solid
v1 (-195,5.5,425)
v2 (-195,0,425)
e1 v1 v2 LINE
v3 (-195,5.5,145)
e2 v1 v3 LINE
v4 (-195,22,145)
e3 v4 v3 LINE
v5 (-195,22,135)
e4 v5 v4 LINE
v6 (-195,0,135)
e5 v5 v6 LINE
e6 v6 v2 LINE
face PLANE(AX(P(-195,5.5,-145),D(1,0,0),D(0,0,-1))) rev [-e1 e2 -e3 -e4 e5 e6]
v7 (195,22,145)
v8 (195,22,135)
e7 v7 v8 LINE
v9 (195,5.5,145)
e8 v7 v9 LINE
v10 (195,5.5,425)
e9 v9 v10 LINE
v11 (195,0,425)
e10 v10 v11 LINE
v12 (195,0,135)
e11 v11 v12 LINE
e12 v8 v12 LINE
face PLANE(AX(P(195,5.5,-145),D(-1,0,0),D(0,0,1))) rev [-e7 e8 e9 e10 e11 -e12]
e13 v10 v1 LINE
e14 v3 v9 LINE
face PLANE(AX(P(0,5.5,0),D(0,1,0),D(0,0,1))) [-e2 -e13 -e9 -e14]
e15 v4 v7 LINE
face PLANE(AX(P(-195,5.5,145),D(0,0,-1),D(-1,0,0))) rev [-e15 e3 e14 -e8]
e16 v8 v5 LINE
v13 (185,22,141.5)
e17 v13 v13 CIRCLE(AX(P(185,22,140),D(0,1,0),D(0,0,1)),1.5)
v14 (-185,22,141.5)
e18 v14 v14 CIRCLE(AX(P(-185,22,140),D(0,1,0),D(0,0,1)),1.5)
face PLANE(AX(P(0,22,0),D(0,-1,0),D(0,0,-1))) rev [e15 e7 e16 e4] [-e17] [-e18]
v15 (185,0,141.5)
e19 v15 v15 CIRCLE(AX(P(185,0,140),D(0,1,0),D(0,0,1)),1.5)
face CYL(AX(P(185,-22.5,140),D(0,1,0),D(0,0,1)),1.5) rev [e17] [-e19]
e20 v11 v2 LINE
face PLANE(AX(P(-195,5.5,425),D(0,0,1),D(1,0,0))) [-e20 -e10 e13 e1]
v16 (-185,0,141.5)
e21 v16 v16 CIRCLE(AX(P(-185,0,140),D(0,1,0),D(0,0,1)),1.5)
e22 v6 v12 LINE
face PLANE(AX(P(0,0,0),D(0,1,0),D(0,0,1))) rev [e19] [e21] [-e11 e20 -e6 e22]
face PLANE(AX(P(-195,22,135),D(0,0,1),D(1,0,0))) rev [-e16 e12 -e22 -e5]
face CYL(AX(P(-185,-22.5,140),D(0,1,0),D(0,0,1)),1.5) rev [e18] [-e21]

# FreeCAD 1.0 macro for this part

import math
import FreeCAD as App
import Part
import Sketcher
from FreeCAD import Vector
Q = App.Units.Quantity

doc = App.newDocument("Part")
body = doc.addObject("PartDesign::Body", "Body")

# Sketch on XZ plane
sketch1 = body.newObject("Sketcher::SketchObject", "Sketch")
sketch1.AttachmentSupport = (doc.getObject("XZ_Plane"), [""])
sketch1.MapMode = "FlatFace"
sketch1.addGeometry([
    Part.LineSegment(Vector(-195, -145, 0), Vector(-195, 145, 0)),
    Part.LineSegment(Vector(-195, 145, 0), Vector(195, 145, 0)),
    Part.LineSegment(Vector(195, 145, 0), Vector(195, -145, 0)),
    Part.LineSegment(Vector(195, -145, 0), Vector(-195, -145, 0)),
], False)
sketch1.addConstraint([
    Sketcher.Constraint("Coincident", 0, 2, 1, 1),
    Sketcher.Constraint("Coincident", 1, 2, 2, 1),
    Sketcher.Constraint("Coincident", 2, 2, 3, 1),
    Sketcher.Constraint("Coincident", 3, 2, 0, 1),
    Sketcher.Constraint("Vertical", 0),
    Sketcher.Constraint("Horizontal", 1),
    Sketcher.Constraint("Vertical", 2),
    Sketcher.Constraint("Horizontal", 3),
    Sketcher.Constraint("Symmetric", 0, 2, 2, 2, -1, 1),
    Sketcher.Constraint("DistanceX", 1, 1, 1, 2, Q("390 mm")),
    Sketcher.Constraint("DistanceY", 0, 1, 0, 2, Q("290 mm")),
])
pad1 = body.newObject("PartDesign::Pad", "Pad")
pad1.Profile = sketch1
pad1.Length = 10
pad1.Reversed = True

# Sketch on XZ plane
sketch2 = body.newObject("Sketcher::SketchObject", "Sketch001")
sketch2.AttachmentSupport = (doc.getObject("XZ_Plane"), [""])
sketch2.MapMode = "FlatFace"
sketch2.AttachmentOffset = App.Placement(Vector(0, 0, -10), App.Rotation())
sketch2.addGeometry([
    Part.LineSegment(Vector(-195, 138, 0), Vector(-195, 145, 0)),
    Part.LineSegment(Vector(-195, 145, 0), Vector(195, 145, 0)),
    Part.LineSegment(Vector(195, 145, 0), Vector(195, 138, 0)),
    Part.LineSegment(Vector(195, 138, 0), Vector(-195, 138, 0)),
], False)
sketch2.addConstraint([
    Sketcher.Constraint("Coincident", 0, 2, 1, 1),
    Sketcher.Constraint("Coincident", 1, 2, 2, 1),
    Sketcher.Constraint("Coincident", 2, 2, 3, 1),
    Sketcher.Constraint("Coincident", 3, 2, 0, 1),
    Sketcher.Constraint("Vertical", 0),
    Sketcher.Constraint("Horizontal", 1),
    Sketcher.Constraint("Vertical", 2),
    Sketcher.Constraint("Horizontal", 3),
    Sketcher.Constraint("DistanceX", 1, 1, 1, 2, Q("390 mm")),
    Sketcher.Constraint("DistanceY", 0, 1, 0, 2, Q("7 mm")),
    Sketcher.Constraint("DistanceX", 0, 2, -1, 1, Q("195 mm")),
    Sketcher.Constraint("DistanceY", -1, 1, 0, 2, Q("145 mm")),
])
pad2 = body.newObject("PartDesign::Pad", "Pad001")
pad2.Profile = sketch2
pad2.Length = 25
pad2.Reversed = True

# Sketch on YZ plane
sketch3 = body.newObject("Sketcher::SketchObject", "Sketch002")
sketch3.AttachmentSupport = (doc.getObject("YZ_Plane"), [""])
sketch3.MapMode = "FlatFace"
sketch3.AttachmentOffset = App.Placement(Vector(0, 0, -195), App.Rotation())
sketch3.addGeometry([
    Part.LineSegment(Vector(-136, 51, 0), Vector(0, 145, 0)),
    Part.LineSegment(Vector(0, 145, 0), Vector(0, -145, 0)),
    Part.LineSegment(Vector(0, -145, 0), Vector(-136, 51, 0)),
], False)
sketch3.addConstraint([
    Sketcher.Constraint("Coincident", 0, 2, 1, 1),
    Sketcher.Constraint("Coincident", 1, 2, 2, 1),
    Sketcher.Constraint("Coincident", 2, 2, 0, 1),
    Sketcher.Constraint("Vertical", 1),
    Sketcher.Constraint("Symmetric", 0, 2, 1, 2, -1, 1),
    Sketcher.Constraint("Perpendicular", 0, 2),
    Sketcher.Constraint("DistanceY", 1, 2, 1, 1, Q("290 mm")),
    Sketcher.Constraint("Distance", 0, Q("165 mm")),
])
pad3 = body.newObject("PartDesign::Pad", "Pad002")
pad3.Profile = sketch3
pad3.Length = 390

# Sketch on YZ plane
sketch4 = body.newObject("Sketcher::SketchObject", "Sketch003")
sketch4.AttachmentSupport = (doc.getObject("YZ_Plane"), [""])
sketch4.MapMode = "FlatFace"
sketch4.AttachmentOffset = App.Placement(Vector(0, 0, -195), App.Rotation())
sketch4.addGeometry([
    Part.LineSegment(Vector(0, 145, 0), Vector(0, -145, 0)),
    Part.LineSegment(Vector(0, -145, 0), Vector(-136, 51, 0)),
    Part.LineSegment(Vector(-136, 51, 0), Vector(0, 145, 0)),
], False)
sketch4.addConstraint([
    Sketcher.Constraint("Coincident", 0, 2, 1, 1),
    Sketcher.Constraint("Coincident", 1, 2, 2, 1),
    Sketcher.Constraint("Coincident", 2, 2, 0, 1),
    Sketcher.Constraint("Vertical", 0),
    Sketcher.Constraint("Symmetric", 0, 2, 2, 2, -1, 1),
    Sketcher.Constraint("Perpendicular", 1, 2),
    Sketcher.Constraint("DistanceY", 0, 2, 0, 1, Q("290 mm")),
    Sketcher.Constraint("Distance", 2, Q("165 mm")),
])
pocket1 = body.newObject("PartDesign::Pocket", "Pocket")
pocket1.Profile = sketch4
pocket1.Length = 180
pocket1.Reversed = True

# Sketch on YZ plane
sketch5 = body.newObject("Sketcher::SketchObject", "Sketch004")
sketch5.AttachmentSupport = (doc.getObject("YZ_Plane"), [""])
sketch5.MapMode = "FlatFace"
sketch5.AttachmentOffset = App.Placement(Vector(0, 0, 195), App.Rotation())
sketch5.addGeometry([
    Part.LineSegment(Vector(0, -145, 0), Vector(0, 145, 0)),
    Part.LineSegment(Vector(0, 145, 0), Vector(-136, 51, 0)),
    Part.LineSegment(Vector(-136, 51, 0), Vector(0, -145, 0)),
], False)
sketch5.addConstraint([
    Sketcher.Constraint("Coincident", 0, 2, 1, 1),
    Sketcher.Constraint("Coincident", 1, 2, 2, 1),
    Sketcher.Constraint("Coincident", 2, 2, 0, 1),
    Sketcher.Constraint("Vertical", 0),
    Sketcher.Constraint("Symmetric", 0, 2, 2, 2, -1, 1),
    Sketcher.Constraint("Perpendicular", 1, 2),
    Sketcher.Constraint("DistanceY", 0, 1, 0, 2, Q("290 mm")),
    Sketcher.Constraint("Distance", 1, Q("165 mm")),
])
pocket2 = body.newObject("PartDesign::Pocket", "Pocket001")
pocket2.Profile = sketch5
pocket2.Length = 180

# Sketch on an angled plane
sketch6 = body.newObject("Sketcher::SketchObject", "Sketch005")
sketch6.Placement = App.Placement(Vector(0, -67.844814, -46.939655), App.Rotation(Vector(-1, 0, 0), Vector(0, 0.568965517, -0.822361381), Vector(0, -0.822361381, -0.568965517), "ZXY"))
sketch6.addGeometry([
    Part.LineSegment(Vector(15, -119, 0), Vector(105, 119, 0)),
    Part.LineSegment(Vector(105, 119, 0), Vector(75, 119, 0)),
    Part.LineSegment(Vector(75, 119, 0), Vector(15, -40, 0)),
    Part.LineSegment(Vector(15, -40, 0), Vector(15, -119, 0)),
], False)
sketch6.addConstraint([
    Sketcher.Constraint("Coincident", 0, 2, 1, 1),
    Sketcher.Constraint("Coincident", 1, 2, 2, 1),
    Sketcher.Constraint("Coincident", 2, 2, 3, 1),
    Sketcher.Constraint("Coincident", 3, 2, 0, 1),
    Sketcher.Constraint("Horizontal", 1),
    Sketcher.Constraint("Vertical", 3),
    Sketcher.Constraint("Parallel", 0, 2),
    Sketcher.Constraint("DistanceX", 1, 2, 1, 1, Q("30 mm")),
    Sketcher.Constraint("DistanceX", -1, 1, 0, 2, Q("105 mm")),
    Sketcher.Constraint("DistanceX", -1, 1, 2, 2, Q("15 mm")),
    Sketcher.Constraint("DistanceY", -1, 1, 0, 2, Q("119.2424 mm")),
    Sketcher.Constraint("DistanceY", 3, 2, -1, 1, Q("119.2424 mm")),
])
pad4 = body.newObject("PartDesign::Pad", "Pad003")
pad4.Profile = sketch6
pad4.Length = 179
pad4.Reversed = True

# Sketch on YZ plane
sketch7 = body.newObject("Sketcher::SketchObject", "Sketch006")
sketch7.AttachmentSupport = (doc.getObject("YZ_Plane"), [""])
sketch7.MapMode = "FlatFace"
sketch7.AttachmentOffset = App.Placement(Vector(0, 0, -195), App.Rotation())
sketch7.addGeometry([
    Part.LineSegment(Vector(204, -145, 0), Vector(10, -145, 0)),
    Part.LineSegment(Vector(10, -145, 0), Vector(10, 138, 0)),
    Part.LineSegment(Vector(10, 138, 0), Vector(204, 138, 0)),
    Part.LineSegment(Vector(204, 138, 0), Vector(204, -145, 0)),
], False)
sketch7.addConstraint([
    Sketcher.Constraint("Coincident", 0, 2, 1, 1),
    Sketcher.Constraint("Coincident", 1, 2, 2, 1),
    Sketcher.Constraint("Coincident", 2, 2, 3, 1),
    Sketcher.Constraint("Coincident", 3, 2, 0, 1),
    Sketcher.Constraint("Horizontal", 0),
    Sketcher.Constraint("Vertical", 1),
    Sketcher.Constraint("Horizontal", 2),
    Sketcher.Constraint("Vertical", 3),
    Sketcher.Constraint("DistanceY", 1, 1, 1, 2, Q("283 mm")),
    Sketcher.Constraint("DistanceX", -1, 1, 0, 2, Q("10 mm")),
    Sketcher.Constraint("DistanceY", 0, 2, -1, 1, Q("145 mm")),
    Sketcher.Constraint("DistanceX", 0, 2, 0, 1, Q("194.109963 mm")),
])
pocket3 = body.newObject("PartDesign::Pocket", "Pocket002")
pocket3.Profile = sketch7
pocket3.Length = 236
pocket3.Reversed = True

# Sketch on YZ plane
sketch8 = body.newObject("Sketcher::SketchObject", "Sketch007")
sketch8.AttachmentSupport = (doc.getObject("YZ_Plane"), [""])
sketch8.MapMode = "FlatFace"
sketch8.AttachmentOffset = App.Placement(Vector(0, 0, -195), App.Rotation())
sketch8.addGeometry([
    Part.LineSegment(Vector(17, 145, 0), Vector(0, 145, 0)),
    Part.LineSegment(Vector(0, 145, 0), Vector(2, 166, 0)),
    Part.LineSegment(Vector(2, 166, 0), Vector(19, 161, 0)),
    Part.LineSegment(Vector(19, 161, 0), Vector(17, 145, 0)),
], False)
sketch8.addConstraint([
    Sketcher.Constraint("Coincident", 0, 2, 1, 1),
    Sketcher.Constraint("Coincident", 1, 2, 2, 1),
    Sketcher.Constraint("Coincident", 2, 2, 3, 1),
    Sketcher.Constraint("Coincident", 3, 2, 0, 1),
    Sketcher.Constraint("Horizontal", 0),
    Sketcher.Constraint("PointOnObject", 0, 2, -2),
    Sketcher.Constraint("DistanceY", -1, 1, 0, 2, Q("145 mm")),
    Sketcher.Constraint("Distance", 3, Q("16.516949 mm")),
    Sketcher.Constraint("DistanceX", 0, 2, 0, 1, Q("17.024146 mm")),
    Sketcher.Constraint("DistanceY", -1, 1, 1, 2, Q("165.78959 mm")),
    Sketcher.Constraint("DistanceX", 1, 2, 3, 2, Q("15.42095 mm")),
    Sketcher.Constraint("Distance", 2, Q("18.251814 mm")),
])
pocket4 = body.newObject("PartDesign::Pocket", "Pocket003")
pocket4.Profile = sketch8
pocket4.Length = 236
pocket4.Reversed = True

# Sketch on an angled plane
sketch9 = body.newObject("Sketcher::SketchObject", "Sketch008")
sketch9.Placement = App.Placement(Vector(0, -67.844814, -46.939655), App.Rotation(Vector(-1, 0, 0), Vector(0, 0.568965517, -0.822361381), Vector(0, -0.822361381, -0.568965517), "ZXY"))
sketch9.addGeometry([
    Part.LineSegment(Vector(-105, 119, 0), Vector(-15, -119, 0)),
    Part.LineSegment(Vector(-15, -119, 0), Vector(-15, -40, 0)),
    Part.LineSegment(Vector(-15, -40, 0), Vector(-75, 119, 0)),
    Part.LineSegment(Vector(-75, 119, 0), Vector(-105, 119, 0)),
], False)
sketch9.addConstraint([
    Sketcher.Constraint("Coincident", 0, 2, 1, 1),
    Sketcher.Constraint("Coincident", 1, 2, 2, 1),
    Sketcher.Constraint("Coincident", 2, 2, 3, 1),
    Sketcher.Constraint("Coincident", 3, 2, 0, 1),
    Sketcher.Constraint("Vertical", 1),
    Sketcher.Constraint("Horizontal", 3),
    Sketcher.Constraint("Parallel", 0, 2),
    Sketcher.Constraint("DistanceX", 3, 2, 3, 1, Q("30 mm")),
    Sketcher.Constraint("DistanceX", 0, 2, -1, 1, Q("15 mm")),
    Sketcher.Constraint("DistanceX", 2, 2, -1, 1, Q("75 mm")),
    Sketcher.Constraint("DistanceY", 0, 2, -1, 1, Q("119.2424 mm")),
    Sketcher.Constraint("DistanceY", -1, 1, 2, 2, Q("119.2424 mm")),
])
pad5 = body.newObject("PartDesign::Pad", "Pad004")
pad5.Profile = sketch9
pad5.Length = 236
pad5.Reversed = True

# Sketch on YZ plane
sketch10 = body.newObject("Sketcher::SketchObject", "Sketch009")
sketch10.AttachmentSupport = (doc.getObject("YZ_Plane"), [""])
sketch10.MapMode = "FlatFace"
sketch10.AttachmentOffset = App.Placement(Vector(0, 0, 195), App.Rotation())
sketch10.addGeometry([
    Part.LineSegment(Vector(247, 138, 0), Vector(10, 138, 0)),  # 0
    Part.LineSegment(Vector(10, 138, 0), Vector(10, -202, 0)),  # 1
    Part.LineSegment(Vector(10, -202, 0), Vector(247, -202, 0)),  # 2
    Part.LineSegment(Vector(247, -202, 0), Vector(247, 138, 0)),  # 3
    Part.LineSegment(Vector(75, 190, 0), Vector(0, 190, 0)),  # 4
    Part.LineSegment(Vector(0, 190, 0), Vector(0, 145, 0)),  # 5
    Part.LineSegment(Vector(0, 145, 0), Vector(75, 145, 0)),  # 6
    Part.LineSegment(Vector(75, 145, 0), Vector(75, 190, 0)),  # 7
], False)
sketch10.addConstraint([
    Sketcher.Constraint("Coincident", 0, 2, 1, 1),
    Sketcher.Constraint("Coincident", 1, 2, 2, 1),
    Sketcher.Constraint("Coincident", 2, 2, 3, 1),
    Sketcher.Constraint("Coincident", 3, 2, 0, 1),
    Sketcher.Constraint("Coincident", 4, 2, 5, 1),
    Sketcher.Constraint("Coincident", 5, 2, 6, 1),
    Sketcher.Constraint("Coincident", 6, 2, 7, 1),
    Sketcher.Constraint("Coincident", 7, 2, 4, 1),
    Sketcher.Constraint("Horizontal", 0),
    Sketcher.Constraint("Vertical", 1),
    Sketcher.Constraint("Horizontal", 2),
    Sketcher.Constraint("Vertical", 3),
    Sketcher.Constraint("Horizontal", 4),
    Sketcher.Constraint("Vertical", 5),
    Sketcher.Constraint("Horizontal", 6),
    Sketcher.Constraint("Vertical", 7),
    Sketcher.Constraint("PointOnObject", 4, 2, -2),
    Sketcher.Constraint("DistanceX", -1, 1, 0, 2, Q("10 mm")),
    Sketcher.Constraint("DistanceY", -1, 1, 0, 2, Q("138 mm")),
    Sketcher.Constraint("DistanceY", -1, 1, 5, 2, Q("145 mm")),
    Sketcher.Constraint("DistanceX", 0, 2, 0, 1, Q("236.819652 mm")),
    Sketcher.Constraint("DistanceX", 4, 2, 4, 1, Q("75.104658 mm")),
    Sketcher.Constraint("DistanceY", 1, 2, 1, 1, Q("339.798947 mm")),
    Sketcher.Constraint("DistanceY", 5, 2, 5, 1, Q("44.776465 mm")),
])
pocket5 = body.newObject("PartDesign::Pocket", "Pocket004")
pocket5.Profile = sketch10
pocket5.Length = 500

# Sketch on YZ plane
sketch11 = body.newObject("Sketcher::SketchObject", "Sketch010")
sketch11.AttachmentSupport = (doc.getObject("YZ_Plane"), [""])
sketch11.MapMode = "FlatFace"
sketch11.AttachmentOffset = App.Placement(Vector(0, 0, 195), App.Rotation())
sketch11.addGeometry([
    Part.LineSegment(Vector(116, 197, 0), Vector(35, 197, 0)),
    Part.LineSegment(Vector(35, 197, 0), Vector(35, 138, 0)),
    Part.LineSegment(Vector(35, 138, 0), Vector(116, 138, 0)),
    Part.LineSegment(Vector(116, 138, 0), Vector(116, 197, 0)),
], False)
sketch11.addConstraint([
    Sketcher.Constraint("Coincident", 0, 2, 1, 1),
    Sketcher.Constraint("Coincident", 1, 2, 2, 1),
    Sketcher.Constraint("Coincident", 2, 2, 3, 1),
    Sketcher.Constraint("Coincident", 3, 2, 0, 1),
    Sketcher.Constraint("Horizontal", 0),
    Sketcher.Constraint("Vertical", 1),
    Sketcher.Constraint("Horizontal", 2),
    Sketcher.Constraint("Vertical", 3),
    Sketcher.Constraint("DistanceX", -1, 1, 0, 2, Q("35 mm")),
    Sketcher.Constraint("DistanceY", -1, 1, 1, 2, Q("138 mm")),
    Sketcher.Constraint("DistanceY", 1, 2, 1, 1, Q("59.446001 mm")),
    Sketcher.Constraint("DistanceX", 0, 2, 0, 1, Q("81.43589 mm")),
])
pocket6 = body.newObject("PartDesign::Pocket", "Pocket005")
pocket6.Profile = sketch11
pocket6.Length = 500

# Sketch on YZ plane
sketch12 = body.newObject("Sketcher::SketchObject", "Sketch011")
sketch12.AttachmentSupport = (doc.getObject("YZ_Plane"), [""])
sketch12.MapMode = "FlatFace"
sketch12.AttachmentOffset = App.Placement(Vector(0, 0, -195), App.Rotation())
sketch12.addGeometry([
    Part.LineSegment(Vector(0, -127, 0), Vector(-5, -127, 0)),
    Part.LineSegment(Vector(-5, -127, 0), Vector(-5, -77, 0)),
    Part.LineSegment(Vector(-5, -77, 0), Vector(0, -77, 0)),
    Part.LineSegment(Vector(0, -77, 0), Vector(0, -127, 0)),
], False)
sketch12.addConstraint([
    Sketcher.Constraint("Coincident", 0, 2, 1, 1),
    Sketcher.Constraint("Coincident", 1, 2, 2, 1),
    Sketcher.Constraint("Coincident", 2, 2, 3, 1),
    Sketcher.Constraint("Coincident", 3, 2, 0, 1),
    Sketcher.Constraint("Horizontal", 0),
    Sketcher.Constraint("Vertical", 1),
    Sketcher.Constraint("Horizontal", 2),
    Sketcher.Constraint("Vertical", 3),
    Sketcher.Constraint("PointOnObject", 2, 2, -2),
    Sketcher.Constraint("DistanceX", 0, 2, 0, 1, Q("5 mm")),
    Sketcher.Constraint("DistanceY", 1, 1, 1, 2, Q("50 mm")),
    Sketcher.Constraint("DistanceY", 0, 2, -1, 1, Q("127 mm")),
])
pocket7 = body.newObject("PartDesign::Pocket", "Pocket006")
pocket7.Profile = sketch12
pocket7.Length = 500
pocket7.Reversed = True

# Sketch on XZ plane
sketch13 = body.newObject("Sketcher::SketchObject", "Sketch012")
sketch13.AttachmentSupport = (doc.getObject("XZ_Plane"), [""])
sketch13.MapMode = "FlatFace"
sketch13.AttachmentOffset = App.Placement(Vector(0, 0, -10), App.Rotation())
sketch13.addGeometry([
    Part.LineSegment(Vector(-195, -145, 0), Vector(-195, 138, 0)),
    Part.LineSegment(Vector(-195, 138, 0), Vector(195, 138, 0)),
    Part.LineSegment(Vector(195, 138, 0), Vector(195, -145, 0)),
    Part.LineSegment(Vector(195, -145, 0), Vector(-195, -145, 0)),
], False)
sketch13.addConstraint([
    Sketcher.Constraint("Coincident", 0, 2, 1, 1),
    Sketcher.Constraint("Coincident", 1, 2, 2, 1),
    Sketcher.Constraint("Coincident", 2, 2, 3, 1),
    Sketcher.Constraint("Coincident", 3, 2, 0, 1),
    Sketcher.Constraint("Vertical", 0),
    Sketcher.Constraint("Horizontal", 1),
    Sketcher.Constraint("Vertical", 2),
    Sketcher.Constraint("Horizontal", 3),
    Sketcher.Constraint("DistanceX", 1, 1, 1, 2, Q("390 mm")),
    Sketcher.Constraint("DistanceY", 0, 1, 0, 2, Q("283 mm")),
    Sketcher.Constraint("DistanceX", 0, 2, -1, 1, Q("195 mm")),
    Sketcher.Constraint("DistanceY", -1, 1, 0, 2, Q("138 mm")),
])
pocket8 = body.newObject("PartDesign::Pocket", "Pocket007")
pocket8.Profile = sketch13
pocket8.Length = 10
pocket8.Reversed = True

# Sketch on XZ plane
sketch14 = body.newObject("Sketcher::SketchObject", "Sketch013")
sketch14.AttachmentSupport = (doc.getObject("XZ_Plane"), [""])
sketch14.MapMode = "FlatFace"
sketch14.addGeometry([
    Part.Circle(Vector(-87.2, -136, 0), Vector(0, 0, 1), 3.8),
    Part.Circle(Vector(0, -136, 0), Vector(0, 0, 1), 3.8),
    Part.Circle(Vector(87.2, -136, 0), Vector(0, 0, 1), 3.8),
], False)
sketch14.addConstraint([
    Sketcher.Constraint("Equal", 0, 1),
    Sketcher.Constraint("Equal", 1, 2),
    Sketcher.Constraint("Symmetric", 0, 3, 2, 3, -2),
    Sketcher.Constraint("PointOnObject", 1, 3, -2),
    Sketcher.Constraint("Horizontal", 0, 3, 1, 3),
    Sketcher.Constraint("Diameter", 0, Q("7.5 mm")),
    Sketcher.Constraint("DistanceY", 0, 3, -1, 1, Q("136 mm")),
    Sketcher.Constraint("DistanceX", 0, 3, 2, 3, Q("174.41 mm")),
])
pocket9 = body.newObject("PartDesign::Pocket", "Pocket008")
pocket9.Profile = sketch14
pocket9.Length = 10
pocket9.Reversed = True

# Sketch on XZ plane
sketch15 = body.newObject("Sketcher::SketchObject", "Sketch014")
sketch15.AttachmentSupport = (doc.getObject("XZ_Plane"), [""])
sketch15.MapMode = "FlatFace"
sketch15.addGeometry([
    Part.Circle(Vector(-87.2, -136, 0), Vector(0, 0, 1), 3.8),  # 0
    Part.Circle(Vector(-87.2, -136, 0), Vector(0, 0, 1), 1.5),  # 1
    Part.Circle(Vector(0, -136, 0), Vector(0, 0, 1), 3.8),  # 2
    Part.Circle(Vector(0, -136, 0), Vector(0, 0, 1), 1.5),  # 3
    Part.Circle(Vector(87.2, -136, 0), Vector(0, 0, 1), 3.8),  # 4
    Part.Circle(Vector(87.2, -136, 0), Vector(0, 0, 1), 1.5),  # 5
], False)
sketch15.addConstraint([
    Sketcher.Constraint("Coincident", 1, 3, 0, 3),
    Sketcher.Constraint("Coincident", 3, 3, 2, 3),
    Sketcher.Constraint("Coincident", 5, 3, 4, 3),
    Sketcher.Constraint("Equal", 0, 2),
    Sketcher.Constraint("Equal", 1, 3),
    Sketcher.Constraint("Equal", 2, 4),
    Sketcher.Constraint("Equal", 3, 5),
    Sketcher.Constraint("Symmetric", 0, 3, 4, 3, -2),
    Sketcher.Constraint("PointOnObject", 2, 3, -2),
    Sketcher.Constraint("Horizontal", 1, 3, 2, 3),
    Sketcher.Constraint("Diameter", 1, Q("3 mm")),
    Sketcher.Constraint("Diameter", 0, Q("7.5 mm")),
    Sketcher.Constraint("DistanceY", 0, 3, -1, 1, Q("136 mm")),
    Sketcher.Constraint("DistanceX", 0, 3, 4, 3, Q("174.41 mm")),
])
pad6 = body.newObject("PartDesign::Pad", "Pad005")
pad6.Profile = sketch15
pad6.Length = 4

# Sketch on XZ plane
sketch16 = body.newObject("Sketcher::SketchObject", "Sketch015")
sketch16.AttachmentSupport = (doc.getObject("XZ_Plane"), [""])
sketch16.MapMode = "FlatFace"
sketch16.addGeometry([
    Part.Circle(Vector(-52.5, -22, 0), Vector(0, 0, 1), 1.5),  # 0
    Part.Circle(Vector(0, -22, 0), Vector(0, 0, 1), 1.5),  # 1
    Part.Circle(Vector(52.5, -22, 0), Vector(0, 0, 1), 1.5),  # 2
    Part.Circle(Vector(0, 58, 0), Vector(0, 0, 1), 1.5),  # 3
    Part.Circle(Vector(0, 116, 0), Vector(0, 0, 1), 1.5),  # 4
], False)
sketch16.addConstraint([
    Sketcher.Constraint("Equal", 0, 1),
    Sketcher.Constraint("Equal", 1, 2),
    Sketcher.Constraint("Equal", 2, 3),
    Sketcher.Constraint("Equal", 3, 4),
    Sketcher.Constraint("Symmetric", 0, 3, 2, 3, -2),
    Sketcher.Constraint("PointOnObject", 1, 3, -2),
    Sketcher.Constraint("PointOnObject", 3, 3, -2),
    Sketcher.Constraint("PointOnObject", 4, 3, -2),
    Sketcher.Constraint("Horizontal", 0, 3, 1, 3),
    Sketcher.Constraint("Diameter", 0, Q("3 mm")),
    Sketcher.Constraint("DistanceY", 0, 3, -1, 1, Q("22 mm")),
    Sketcher.Constraint("DistanceY", -1, 1, 3, 3, Q("58 mm")),
    Sketcher.Constraint("DistanceY", -1, 1, 4, 3, Q("116 mm")),
    Sketcher.Constraint("DistanceX", 0, 3, -1, 1, Q("52.533338 mm")),
])
pad7 = body.newObject("PartDesign::Pad", "Pad006")
pad7.Profile = sketch16
pad7.Length = 15
pad7.Reversed = True
body2 = doc.addObject("PartDesign::Body", "Body001")

# Sketch on XZ plane
sketch17 = body2.newObject("Sketcher::SketchObject", "Sketch016")
sketch17.AttachmentSupport = (doc.getObject("XZ_Plane001"), [""])
sketch17.MapMode = "FlatFace"
sketch17.addGeometry(Part.Circle(Vector(-87.2, -136, 0), Vector(0, 0, 1), 1.5), False)
sketch17.addConstraint([
    Sketcher.Constraint("Diameter", 0, Q("3 mm")),
    Sketcher.Constraint("DistanceY", 0, 3, -1, 1, Q("136 mm")),
    Sketcher.Constraint("DistanceX", 0, 3, -1, 1, Q("87.205 mm")),
])
pad8 = body2.newObject("PartDesign::Pad", "Pad007")
pad8.Profile = sketch17
pad8.Length = 15
pad8.Reversed = True
body3 = doc.addObject("PartDesign::Body", "Body002")

# Sketch on XZ plane
sketch18 = body3.newObject("Sketcher::SketchObject", "Sketch017")
sketch18.AttachmentSupport = (doc.getObject("XZ_Plane002"), [""])
sketch18.MapMode = "FlatFace"
sketch18.addGeometry(Part.Circle(Vector(0, -136, 0), Vector(0, 0, 1), 1.5), False)
sketch18.addConstraint([
    Sketcher.Constraint("PointOnObject", 0, 3, -2),
    Sketcher.Constraint("Diameter", 0, Q("3 mm")),
    Sketcher.Constraint("DistanceY", 0, 3, -1, 1, Q("136 mm")),
])
pad9 = body3.newObject("PartDesign::Pad", "Pad008")
pad9.Profile = sketch18
pad9.Length = 15
pad9.Reversed = True
body4 = doc.addObject("PartDesign::Body", "Body003")

# Sketch on XZ plane
sketch19 = body4.newObject("Sketcher::SketchObject", "Sketch018")
sketch19.AttachmentSupport = (doc.getObject("XZ_Plane003"), [""])
sketch19.MapMode = "FlatFace"
sketch19.addGeometry(Part.Circle(Vector(87.2, -136, 0), Vector(0, 0, 1), 1.5), False)
sketch19.addConstraint([
    Sketcher.Constraint("Diameter", 0, Q("3 mm")),
    Sketcher.Constraint("DistanceY", 0, 3, -1, 1, Q("136 mm")),
    Sketcher.Constraint("DistanceX", -1, 1, 0, 3, Q("87.205 mm")),
])
pad10 = body4.newObject("PartDesign::Pad", "Pad009")
pad10.Profile = sketch19
pad10.Length = 15
pad10.Reversed = True
body.AllowCompound = True
doc.recompute()

boolean = body.newObject("PartDesign::Boolean", "Boolean")
boolean.Type = "Fuse"
boolean.addObjects([body2])
doc.recompute()

boolean2 = body.newObject("PartDesign::Boolean", "Boolean001")
boolean2.Type = "Fuse"
boolean2.addObjects([body3])
doc.recompute()

boolean3 = body.newObject("PartDesign::Boolean", "Boolean002")
boolean3.Type = "Fuse"
boolean3.addObjects([body4])

# Sketch on XZ plane
sketch20 = body.newObject("Sketcher::SketchObject", "Sketch019")
sketch20.AttachmentSupport = (doc.getObject("XZ_Plane"), [""])
sketch20.MapMode = "FlatFace"
sketch20.addGeometry([
    Part.LineSegment(Vector(-195, -145, 0), Vector(-195, 138, 0)),
    Part.LineSegment(Vector(-195, 138, 0), Vector(195, 138, 0)),
    Part.LineSegment(Vector(195, 138, 0), Vector(195, -145, 0)),
    Part.LineSegment(Vector(195, -145, 0), Vector(-195, -145, 0)),
], False)
sketch20.addConstraint([
    Sketcher.Constraint("Coincident", 0, 2, 1, 1),
    Sketcher.Constraint("Coincident", 1, 2, 2, 1),
    Sketcher.Constraint("Coincident", 2, 2, 3, 1),
    Sketcher.Constraint("Coincident", 3, 2, 0, 1),
    Sketcher.Constraint("Vertical", 0),
    Sketcher.Constraint("Horizontal", 1),
    Sketcher.Constraint("Vertical", 2),
    Sketcher.Constraint("Horizontal", 3),
    Sketcher.Constraint("DistanceX", 1, 1, 1, 2, Q("390 mm")),
    Sketcher.Constraint("DistanceY", 0, 1, 0, 2, Q("283 mm")),
    Sketcher.Constraint("DistanceX", 0, 2, -1, 1, Q("195 mm")),
    Sketcher.Constraint("DistanceY", -1, 1, 0, 2, Q("138 mm")),
])
pad11 = body.newObject("PartDesign::Pad", "Pad010")
pad11.Profile = sketch20
pad11.Length = 10
pad11.Reversed = True

# Sketch on XZ plane
sketch21 = body.newObject("Sketcher::SketchObject", "Sketch020")
sketch21.AttachmentSupport = (doc.getObject("XZ_Plane"), [""])
sketch21.MapMode = "FlatFace"
sketch21.AttachmentOffset = App.Placement(Vector(0, 0, 32), App.Rotation())
sketch21.addGeometry([
    Part.Circle(Vector(0, 116, 0), Vector(0, 0, 1), 1.5),  # 0
    Part.Circle(Vector(0, 58, 0), Vector(0, 0, 1), 1.5),  # 1
    Part.Circle(Vector(-52.5, -22, 0), Vector(0, 0, 1), 1.5),  # 2
    Part.Circle(Vector(0, -22, 0), Vector(0, 0, 1), 1.5),  # 3
    Part.Circle(Vector(52.5, -22, 0), Vector(0, 0, 1), 1.5),  # 4
    Part.Circle(Vector(87.2, -136, 0), Vector(0, 0, 1), 1.5),  # 5
    Part.Circle(Vector(0, -136, 0), Vector(0, 0, 1), 1.5),  # 6
    Part.Circle(Vector(-87.2, -136, 0), Vector(0, 0, 1), 1.5),  # 7
], False)
sketch21.addConstraint([
    Sketcher.Constraint("Equal", 0, 1),
    Sketcher.Constraint("Equal", 1, 2),
    Sketcher.Constraint("Equal", 2, 3),
    Sketcher.Constraint("Equal", 3, 4),
    Sketcher.Constraint("Equal", 4, 5),
    Sketcher.Constraint("Equal", 5, 6),
    Sketcher.Constraint("Equal", 6, 7),
    Sketcher.Constraint("Symmetric", 2, 3, 4, 3, -2),
    Sketcher.Constraint("Symmetric", 5, 3, 7, 3, -2),
    Sketcher.Constraint("PointOnObject", 0, 3, -2),
    Sketcher.Constraint("PointOnObject", 1, 3, -2),
    Sketcher.Constraint("PointOnObject", 3, 3, -2),
    Sketcher.Constraint("PointOnObject", 6, 3, -2),
    Sketcher.Constraint("Horizontal", 2, 3, 3, 3),
    Sketcher.Constraint("Horizontal", 5, 3, 6, 3),
    Sketcher.Constraint("Diameter", 0, Q("3 mm")),
    Sketcher.Constraint("DistanceY", -1, 1, 0, 3, Q("116 mm")),
    Sketcher.Constraint("DistanceY", -1, 1, 1, 3, Q("58 mm")),
    Sketcher.Constraint("DistanceY", 2, 3, -1, 1, Q("22 mm")),
    Sketcher.Constraint("DistanceY", 5, 3, -1, 1, Q("136 mm")),
    Sketcher.Constraint("DistanceX", 7, 3, 5, 3, Q("174.41 mm")),
    Sketcher.Constraint("DistanceX", 2, 3, -1, 1, Q("52.533338 mm")),
])
pocket10 = body.newObject("PartDesign::Pocket", "Pocket009")
pocket10.Profile = sketch21
pocket10.Length = 47

# Sketch on YZ plane
sketch22 = body.newObject("Sketcher::SketchObject", "Sketch021")
sketch22.AttachmentSupport = (doc.getObject("YZ_Plane"), [""])
sketch22.MapMode = "FlatFace"
sketch22.AttachmentOffset = App.Placement(Vector(0, 0, -195), App.Rotation())
sketch22.addGeometry([
    Part.LineSegment(Vector(10, -145, 0), Vector(5.5, -145, 0)),
    Part.LineSegment(Vector(5.5, -145, 0), Vector(5.5, 138, 0)),
    Part.LineSegment(Vector(5.5, 138, 0), Vector(10, 138, 0)),
    Part.LineSegment(Vector(10, 138, 0), Vector(10, -145, 0)),
], False)
sketch22.addConstraint([
    Sketcher.Constraint("Coincident", 0, 2, 1, 1),
    Sketcher.Constraint("Coincident", 1, 2, 2, 1),
    Sketcher.Constraint("Coincident", 2, 2, 3, 1),
    Sketcher.Constraint("Coincident", 3, 2, 0, 1),
    Sketcher.Constraint("Horizontal", 0),
    Sketcher.Constraint("Vertical", 1),
    Sketcher.Constraint("Horizontal", 2),
    Sketcher.Constraint("Vertical", 3),
    Sketcher.Constraint("DistanceY", 1, 1, 1, 2, Q("283 mm")),
    Sketcher.Constraint("DistanceX", 0, 2, 0, 1, Q("4.5 mm")),
    Sketcher.Constraint("DistanceY", 0, 2, -1, 1, Q("145 mm")),
    Sketcher.Constraint("DistanceX", -1, 1, 2, 2, Q("10 mm")),
])
pocket11 = body.newObject("PartDesign::Pocket", "Pocket010")
pocket11.Profile = sketch22
pocket11.Length = 500
pocket11.Reversed = True

# Sketch on YZ plane
sketch23 = body.newObject("Sketcher::SketchObject", "Sketch022")
sketch23.AttachmentSupport = (doc.getObject("YZ_Plane"), [""])
sketch23.MapMode = "FlatFace"
sketch23.AttachmentOffset = App.Placement(Vector(0, 0, -195), App.Rotation())
sketch23.addGeometry([
    Part.LineSegment(Vector(35, 138, 0), Vector(26, 138, 0)),
    Part.LineSegment(Vector(26, 138, 0), Vector(26, 145, 0)),
    Part.LineSegment(Vector(26, 145, 0), Vector(35, 145, 0)),
    Part.LineSegment(Vector(35, 145, 0), Vector(35, 138, 0)),
], False)
sketch23.addConstraint([
    Sketcher.Constraint("Coincident", 0, 2, 1, 1),
    Sketcher.Constraint("Coincident", 1, 2, 2, 1),
    Sketcher.Constraint("Coincident", 2, 2, 3, 1),
    Sketcher.Constraint("Coincident", 3, 2, 0, 1),
    Sketcher.Constraint("Horizontal", 0),
    Sketcher.Constraint("Vertical", 1),
    Sketcher.Constraint("Horizontal", 2),
    Sketcher.Constraint("Vertical", 3),
    Sketcher.Constraint("DistanceY", 1, 1, 1, 2, Q("7 mm")),
    Sketcher.Constraint("DistanceX", 0, 2, 0, 1, Q("9.5 mm")),
    Sketcher.Constraint("DistanceY", -1, 1, 0, 2, Q("138 mm")),
    Sketcher.Constraint("DistanceX", -1, 1, 2, 2, Q("35 mm")),
])
pocket12 = body.newObject("PartDesign::Pocket", "Pocket011")
pocket12.Profile = sketch23
pocket12.Length = 500
pocket12.Reversed = True

# Sketch on YZ plane
sketch24 = body.newObject("Sketcher::SketchObject", "Sketch023")
sketch24.AttachmentSupport = (doc.getObject("YZ_Plane"), [""])
sketch24.MapMode = "FlatFace"
sketch24.AttachmentOffset = App.Placement(Vector(0, 0, -195), App.Rotation())
sketch24.addGeometry([
    Part.LineSegment(Vector(-136, 51, 0), Vector(-93, 81, 0)),
    Part.LineSegment(Vector(-93, 81, 0), Vector(-71, 49, 0)),
    Part.LineSegment(Vector(-71, 49, 0), Vector(-114, 19, 0)),
    Part.LineSegment(Vector(-114, 19, 0), Vector(-136, 51, 0)),
], False)
sketch24.addConstraint([
    Sketcher.Constraint("Coincident", 0, 2, 1, 1),
    Sketcher.Constraint("Coincident", 1, 2, 2, 1),
    Sketcher.Constraint("Coincident", 2, 2, 3, 1),
    Sketcher.Constraint("Coincident", 3, 2, 0, 1),
    Sketcher.Constraint("Perpendicular", 0, 1),
    Sketcher.Constraint("Perpendicular", 1, 2),
    Sketcher.Constraint("Perpendicular", 2, 3),
    Sketcher.Constraint("Distance", 0, Q("52 mm")),
    Sketcher.Constraint("Distance", 1, Q("38.5 mm")),
    Sketcher.Constraint("DistanceY", -1, 1, 3, 2, Q("51.12069 mm")),
    Sketcher.Constraint("DistanceX", 2, 2, 1, 2, Q("42.762792 mm")),
    Sketcher.Constraint("DistanceX", 0, 2, -1, 1, Q("92.926836 mm")),
])
pocket13 = body.newObject("PartDesign::Pocket", "Pocket012")
pocket13.Profile = sketch24
pocket13.Length = 500
pocket13.Reversed = True

# Sketch on an angled plane
sketch25 = body.newObject("Sketcher::SketchObject", "Sketch024")
sketch25.Placement = App.Placement(Vector(0, -25.082022, -17.353448), App.Rotation(Vector(-1, 0, 0), Vector(0, 0.568965517, -0.822361381), Vector(0, -0.822361381, -0.568965517), "ZXY"))
sketch25.addGeometry(Part.Circle(Vector(0, -91.2, 0), Vector(0, 0, 1), 3.5), False)
sketch25.addConstraint([
    Sketcher.Constraint("PointOnObject", 0, 3, -2),
    Sketcher.Constraint("Diameter", 0, Q("7 mm")),
    Sketcher.Constraint("DistanceY", 0, 3, -1, 1, Q("91.2424 mm")),
])
pocket14 = body.newObject("PartDesign::Pocket", "Pocket013")
pocket14.Profile = sketch25
pocket14.Length = 20

# Sketch on YZ plane
sketch26 = body.newObject("Sketcher::SketchObject", "Sketch025")
sketch26.AttachmentSupport = (doc.getObject("YZ_Plane"), [""])
sketch26.MapMode = "FlatFace"
sketch26.AttachmentOffset = App.Placement(Vector(0, 0, 195), App.Rotation())
sketch26.addGeometry([
    Part.LineSegment(Vector(-64, 76, 0), Vector(-71, 71, 0)),
    Part.LineSegment(Vector(-71, 71, 0), Vector(-62, 59, 0)),
    Part.LineSegment(Vector(-62, 59, 0), Vector(-55, 63, 0)),
    Part.LineSegment(Vector(-55, 63, 0), Vector(-64, 76, 0)),
], False)
sketch26.addConstraint([
    Sketcher.Constraint("Coincident", 0, 2, 1, 1),
    Sketcher.Constraint("Coincident", 1, 2, 2, 1),
    Sketcher.Constraint("Coincident", 2, 2, 3, 1),
    Sketcher.Constraint("Coincident", 3, 2, 0, 1),
    Sketcher.Constraint("Perpendicular", 0, 1),
    Sketcher.Constraint("Perpendicular", 1, 2),
    Sketcher.Constraint("Perpendicular", 2, 3),
    Sketcher.Constraint("Distance", 0, Q("8 mm")),
    Sketcher.Constraint("Distance", 1, Q("15.5 mm")),
    Sketcher.Constraint("DistanceY", 1, 2, 0, 2, Q("12.746601 mm")),
    Sketcher.Constraint("DistanceY", -1, 1, 0, 2, Q("71.45063 mm")),
    Sketcher.Constraint("DistanceX", 1, 2, -1, 1, Q("61.895621 mm")),
])
pocket15 = body.newObject("PartDesign::Pocket", "Pocket014")
pocket15.Profile = sketch26
pocket15.Length = 314

# Sketch on an angled plane
sketch27 = body.newObject("Sketcher::SketchObject", "Sketch026")
sketch27.Placement = App.Placement(Vector(0, -67.844814, 98.060345), App.Rotation(Vector(1, 0, 0), Vector(0, 0.82236138, 0.568965517), Vector(0, -0.568965517, 0.82236138), "ZXY"))
sketch27.addGeometry(Part.Circle(Vector(0, 47.5, 0), Vector(0, 0, 1), 3.5), False)
sketch27.addConstraint([
    Sketcher.Constraint("PointOnObject", 0, 3, -2),
    Sketcher.Constraint("Diameter", 0, Q("7 mm")),
    Sketcher.Constraint("DistanceY", -1, 1, 0, 3, Q("47.5 mm")),
])
pocket16 = body.newObject("PartDesign::Pocket", "Pocket015")
pocket16.Profile = sketch27
pocket16.Length = 25

# Sketch on YZ plane
sketch28 = body.newObject("Sketcher::SketchObject", "Sketch027")
sketch28.AttachmentSupport = (doc.getObject("YZ_Plane"), [""])
sketch28.MapMode = "FlatFace"
sketch28.AttachmentOffset = App.Placement(Vector(0, 0, 195), App.Rotation())
sketch28.addGeometry([
    Part.LineSegment(Vector(37, 145, 0), Vector(0, 145, 0)),
    Part.LineSegment(Vector(0, 145, 0), Vector(0, -164, 0)),
    Part.LineSegment(Vector(0, -164, 0), Vector(37, -164, 0)),
    Part.LineSegment(Vector(37, -164, 0), Vector(37, 145, 0)),
], False)
sketch28.addConstraint([
    Sketcher.Constraint("Coincident", 0, 2, 1, 1),
    Sketcher.Constraint("Coincident", 1, 2, 2, 1),
    Sketcher.Constraint("Coincident", 2, 2, 3, 1),
    Sketcher.Constraint("Coincident", 3, 2, 0, 1),
    Sketcher.Constraint("Horizontal", 0),
    Sketcher.Constraint("Vertical", 1),
    Sketcher.Constraint("Horizontal", 2),
    Sketcher.Constraint("Vertical", 3),
    Sketcher.Constraint("PointOnObject", 0, 2, -2),
    Sketcher.Constraint("DistanceY", -1, 1, 0, 2, Q("145 mm")),
    Sketcher.Constraint("DistanceX", 0, 2, 0, 1, Q("37.038835 mm")),
    Sketcher.Constraint("DistanceY", 1, 2, 1, 1, Q("308.833685 mm")),
])
pocket17 = body.newObject("PartDesign::Pocket", "Pocket016")
pocket17.Profile = sketch28
pocket17.Length = 500

# Sketch on XZ plane
sketch29 = body.newObject("Sketcher::SketchObject", "Sketch028")
sketch29.AttachmentSupport = (doc.getObject("XZ_Plane"), [""])
sketch29.MapMode = "FlatFace"
sketch29.addGeometry([
    Part.LineSegment(Vector(-195, -145, 0), Vector(-195, 145, 0)),  # 0
    Part.LineSegment(Vector(-195, 145, 0), Vector(195, 145, 0)),  # 1
    Part.LineSegment(Vector(195, 145, 0), Vector(195, -145, 0)),  # 2
    Part.LineSegment(Vector(195, -145, 0), Vector(-195, -145, 0)),  # 3
    Part.Circle(Vector(0, 116, 0), Vector(0, 0, 1), 1.5),  # 4
    Part.Circle(Vector(0, 58, 0), Vector(0, 0, 1), 1.5),  # 5
    Part.Circle(Vector(-52.5, -22, 0), Vector(0, 0, 1), 1.5),  # 6
    Part.Circle(Vector(-87.2, -136, 0), Vector(0, 0, 1), 1.5),  # 7
    Part.Circle(Vector(0, -22, 0), Vector(0, 0, 1), 1.5),  # 8
    Part.Circle(Vector(52.5, -22, 0), Vector(0, 0, 1), 1.5),  # 9
    Part.Circle(Vector(0, -136, 0), Vector(0, 0, 1), 1.5),  # 10
    Part.Circle(Vector(87.2, -136, 0), Vector(0, 0, 1), 1.5),  # 11
], False)
sketch29.addConstraint([
    Sketcher.Constraint("Coincident", 0, 2, 1, 1),
    Sketcher.Constraint("Coincident", 1, 2, 2, 1),
    Sketcher.Constraint("Coincident", 2, 2, 3, 1),
    Sketcher.Constraint("Coincident", 3, 2, 0, 1),
    Sketcher.Constraint("Vertical", 0),
    Sketcher.Constraint("Horizontal", 1),
    Sketcher.Constraint("Vertical", 2),
    Sketcher.Constraint("Horizontal", 3),
    Sketcher.Constraint("Equal", 4, 5),
    Sketcher.Constraint("Equal", 5, 6),
    Sketcher.Constraint("Equal", 6, 7),
    Sketcher.Constraint("Equal", 7, 8),
    Sketcher.Constraint("Equal", 8, 9),
    Sketcher.Constraint("Equal", 9, 10),
    Sketcher.Constraint("Equal", 10, 11),
    Sketcher.Constraint("Symmetric", 0, 2, 2, 2, -1, 1),
    Sketcher.Constraint("Symmetric", 6, 3, 9, 3, -2),
    Sketcher.Constraint("Symmetric", 7, 3, 11, 3, -2),
    Sketcher.Constraint("PointOnObject", 4, 3, -2),
    Sketcher.Constraint("PointOnObject", 5, 3, -2),
    Sketcher.Constraint("PointOnObject", 8, 3, -2),
    Sketcher.Constraint("PointOnObject", 10, 3, -2),
    Sketcher.Constraint("Horizontal", 6, 3, 8, 3),
    Sketcher.Constraint("Horizontal", 7, 3, 10, 3),
    Sketcher.Constraint("Diameter", 4, Q("3 mm")),
    Sketcher.Constraint("DistanceX", 1, 1, 1, 2, Q("390 mm")),
    Sketcher.Constraint("DistanceY", 0, 1, 0, 2, Q("290 mm")),
    Sketcher.Constraint("DistanceY", -1, 1, 4, 3, Q("116 mm")),
    Sketcher.Constraint("DistanceY", -1, 1, 5, 3, Q("58 mm")),
    Sketcher.Constraint("DistanceY", 6, 3, -1, 1, Q("22 mm")),
    Sketcher.Constraint("DistanceY", 7, 3, -1, 1, Q("136 mm")),
    Sketcher.Constraint("DistanceX", 7, 3, 11, 3, Q("174.41 mm")),
    Sketcher.Constraint("DistanceX", 6, 3, -1, 1, Q("52.533338 mm")),
])
pad12 = body.newObject("PartDesign::Pad", "Pad011")
pad12.Profile = sketch29
pad12.Length = 5.5
pad12.Reversed = True

# Sketch on XZ plane
sketch30 = body.newObject("Sketcher::SketchObject", "Sketch029")
sketch30.AttachmentSupport = (doc.getObject("XZ_Plane"), [""])
sketch30.MapMode = "FlatFace"
sketch30.AttachmentOffset = App.Placement(Vector(0, 0, -5.5), App.Rotation())
sketch30.addGeometry([
    Part.LineSegment(Vector(-195, 135, 0), Vector(-195, 145, 0)),
    Part.LineSegment(Vector(-195, 145, 0), Vector(195, 145, 0)),
    Part.LineSegment(Vector(195, 145, 0), Vector(195, 135, 0)),
    Part.LineSegment(Vector(195, 135, 0), Vector(-195, 135, 0)),
], False)
sketch30.addConstraint([
    Sketcher.Constraint("Coincident", 0, 2, 1, 1),
    Sketcher.Constraint("Coincident", 1, 2, 2, 1),
    Sketcher.Constraint("Coincident", 2, 2, 3, 1),
    Sketcher.Constraint("Coincident", 3, 2, 0, 1),
    Sketcher.Constraint("Vertical", 0),
    Sketcher.Constraint("Horizontal", 1),
    Sketcher.Constraint("Vertical", 2),
    Sketcher.Constraint("Horizontal", 3),
    Sketcher.Constraint("DistanceX", 1, 1, 1, 2, Q("390 mm")),
    Sketcher.Constraint("DistanceY", 0, 1, 0, 2, Q("10 mm")),
    Sketcher.Constraint("DistanceX", 0, 2, -1, 1, Q("195 mm")),
    Sketcher.Constraint("DistanceY", -1, 1, 0, 2, Q("145 mm")),
])
pad13 = body.newObject("PartDesign::Pad", "Pad012")
pad13.Profile = sketch30
pad13.Length = 22
pad13.Reversed = True

# Sketch on YZ plane
sketch31 = body.newObject("Sketcher::SketchObject", "Sketch030")
sketch31.AttachmentSupport = (doc.getObject("YZ_Plane"), [""])
sketch31.MapMode = "FlatFace"
sketch31.AttachmentOffset = App.Placement(Vector(0, 0, -195), App.Rotation())
sketch31.addGeometry([
    Part.LineSegment(Vector(-15, -123, 0), Vector(-114, 19, 0)),
    Part.LineSegment(Vector(-114, 19, 0), Vector(-71, 49, 0)),
    Part.LineSegment(Vector(-71, 49, 0), Vector(-15, -123, 0)),
], False)
sketch31.addConstraint([
    Sketcher.Constraint("Coincident", 0, 2, 1, 1),
    Sketcher.Constraint("Coincident", 1, 2, 2, 1),
    Sketcher.Constraint("Coincident", 2, 2, 0, 1),
    Sketcher.Constraint("Perpendicular", 0, 1),
    Sketcher.Constraint("Distance", 1, Q("52 mm")),
    Sketcher.Constraint("DistanceX", 2, 2, -1, 1, Q("15 mm")),
    Sketcher.Constraint("DistanceX", 0, 2, 1, 2, Q("42.762792 mm")),
    Sketcher.Constraint("DistanceY", 2, 2, 0, 2, Q("142.77934 mm")),
    Sketcher.Constraint("DistanceY", -1, 1, 0, 2, Q("19.459776 mm")),
])
pocket18 = body.newObject("PartDesign::Pocket", "Pocket017")
pocket18.Profile = sketch31
pocket18.Length = 488
pocket18.Reversed = True

# Sketch on YZ plane
sketch32 = body.newObject("Sketcher::SketchObject", "Sketch031")
sketch32.AttachmentSupport = (doc.getObject("YZ_Plane"), [""])
sketch32.MapMode = "FlatFace"
sketch32.AttachmentOffset = App.Placement(Vector(0, 0, -195), App.Rotation())
sketch32.addGeometry([
    Part.LineSegment(Vector(-17, 39, 0), Vector(-17, -116, 0)),
    Part.LineSegment(Vector(-17, -116, 0), Vector(-71, 49, 0)),
    Part.LineSegment(Vector(-71, 49, 0), Vector(-27, 49, 0)),
    Part.ArcOfCircle(Part.Circle(Vector(-27, 39, 0), Vector(0, 0, 1), 10), math.radians(0), math.radians(90)),
], False)
sketch32.addConstraint([
    Sketcher.Constraint("Coincident", 0, 2, 1, 1),
    Sketcher.Constraint("Coincident", 1, 2, 2, 1),
    Sketcher.Constraint("Tangent", 2, 2, 3, 2),
    Sketcher.Constraint("Tangent", 3, 1, 0, 1),
    Sketcher.Constraint("Vertical", 0),
    Sketcher.Constraint("Horizontal", 2),
    Sketcher.Constraint("Radius", 3, Q("10 mm")),
    Sketcher.Constraint("Distance", 1, Q("173.304961 mm")),
    Sketcher.Constraint("DistanceX", 2, 1, 2, 2, Q("43.568624 mm")),
    Sketcher.Constraint("DistanceX", 3, 3, -1, 1, Q("27.45304 mm")),
    Sketcher.Constraint("DistanceY", -1, 1, 3, 3, Q("39.045983 mm")),
])
pocket19 = body.newObject("PartDesign::Pocket", "Pocket018")
pocket19.Profile = sketch32
pocket19.Length = 479.5
pocket19.Reversed = True

# Sketch on an angled plane
sketch33 = body.newObject("Sketcher::SketchObject", "Sketch032")
sketch33.Placement = App.Placement(Vector(0, -67.844814, 98.060345), App.Rotation(Vector(1, 0, 0), Vector(0, 0.82236138, 0.568965517), Vector(0, -0.568965517, 0.82236138), "ZXY"))
sketch33.addGeometry(Part.Circle(Vector(0, 44.5, 0), Vector(0, 0, 1), 3.5), False)
sketch33.addConstraint([
    Sketcher.Constraint("PointOnObject", 0, 3, -2),
    Sketcher.Constraint("Diameter", 0, Q("7 mm")),
    Sketcher.Constraint("DistanceY", -1, 1, 0, 3, Q("44.5 mm")),
])
pocket20 = body.newObject("PartDesign::Pocket", "Pocket019")
pocket20.Profile = sketch33
pocket20.Length = 25

# Sketch on XZ plane
sketch34 = body.newObject("Sketcher::SketchObject", "Sketch033")
sketch34.AttachmentSupport = (doc.getObject("XZ_Plane"), [""])
sketch34.MapMode = "FlatFace"
sketch34.AttachmentOffset = App.Placement(Vector(0, 0, 32), App.Rotation())
sketch34.addGeometry(Part.Circle(Vector(0, 116, 0), Vector(0, 0, 1), 1.5), False)
sketch34.addConstraint([
    Sketcher.Constraint("PointOnObject", 0, 3, -2),
    Sketcher.Constraint("Diameter", 0, Q("3 mm")),
    Sketcher.Constraint("DistanceY", -1, 1, 0, 3, Q("116 mm")),
])
pad14 = body.newObject("PartDesign::Pad", "Pad013")
pad14.Profile = sketch34
pad14.Length = 9
pad14.Reversed = True

# Sketch on an angled plane
sketch35 = body.newObject("Sketcher::SketchObject", "Sketch034")
sketch35.Placement = App.Placement(Vector(0, -67.844814, 98.060345), App.Rotation(Vector(1, 0, 0), Vector(0, 0.82236138, 0.568965517), Vector(0, -0.568965517, 0.82236138), "ZXY"))
sketch35.addGeometry(Part.Circle(Vector(0, 47.5, 0), Vector(0, 0, 1), 3.5), False)
sketch35.addConstraint([
    Sketcher.Constraint("PointOnObject", 0, 3, -2),
    Sketcher.Constraint("Diameter", 0, Q("7 mm")),
    Sketcher.Constraint("DistanceY", -1, 1, 0, 3, Q("47.5 mm")),
])
pad15 = body.newObject("PartDesign::Pad", "Pad014")
pad15.Profile = sketch35
pad15.Length = 25
pad15.Reversed = True

# Sketch on an angled plane
sketch36 = body.newObject("Sketcher::SketchObject", "Sketch035")
sketch36.Placement = App.Placement(Vector(0, -67.844814, 98.060345), App.Rotation(Vector(1, 0, 0), Vector(0, 0.82236138, 0.568965517), Vector(0, -0.568965517, 0.82236138), "ZXY"))
sketch36.addGeometry(Part.Circle(Vector(0, 44.5, 0), Vector(0, 0, 1), 3.5), False)
sketch36.addConstraint([
    Sketcher.Constraint("PointOnObject", 0, 3, -2),
    Sketcher.Constraint("Diameter", 0, Q("7 mm")),
    Sketcher.Constraint("DistanceY", -1, 1, 0, 3, Q("44.5 mm")),
])
pocket21 = body.newObject("PartDesign::Pocket", "Pocket020")
pocket21.Profile = sketch36
pocket21.Length = 25

# Sketch on YZ plane
sketch37 = body.newObject("Sketcher::SketchObject", "Sketch036")
sketch37.AttachmentSupport = (doc.getObject("YZ_Plane"), [""])
sketch37.MapMode = "FlatFace"
sketch37.AttachmentOffset = App.Placement(Vector(0, 0, -195), App.Rotation())
sketch37.addGeometry([
    Part.LineSegment(Vector(0, -145, 0), Vector(-102, -145, 0)),
    Part.LineSegment(Vector(-102, -145, 0), Vector(-102, 162, 0)),
    Part.LineSegment(Vector(-102, 162, 0), Vector(0, 162, 0)),
    Part.LineSegment(Vector(0, 162, 0), Vector(0, -145, 0)),
], False)
sketch37.addConstraint([
    Sketcher.Constraint("Coincident", 0, 2, 1, 1),
    Sketcher.Constraint("Coincident", 1, 2, 2, 1),
    Sketcher.Constraint("Coincident", 2, 2, 3, 1),
    Sketcher.Constraint("Coincident", 3, 2, 0, 1),
    Sketcher.Constraint("Horizontal", 0),
    Sketcher.Constraint("Vertical", 1),
    Sketcher.Constraint("Horizontal", 2),
    Sketcher.Constraint("Vertical", 3),
    Sketcher.Constraint("PointOnObject", 2, 2, -2),
    Sketcher.Constraint("DistanceY", 0, 2, -1, 1, Q("145 mm")),
    Sketcher.Constraint("DistanceY", 1, 1, 1, 2, Q("307.12834 mm")),
    Sketcher.Constraint("DistanceX", 0, 2, 0, 1, Q("102.232085 mm")),
])
pocket22 = body.newObject("PartDesign::Pocket", "Pocket021")
pocket22.Profile = sketch37
pocket22.Length = 500
pocket22.Reversed = True

# Sketch on XZ plane
sketch38 = body.newObject("Sketcher::SketchObject", "Sketch037")
sketch38.AttachmentSupport = (doc.getObject("XZ_Plane"), [""])
sketch38.MapMode = "FlatFace"
sketch38.AttachmentOffset = App.Placement(Vector(0, 0, -27.5), App.Rotation())
sketch38.addGeometry([
    Part.Circle(Vector(-185, 140, 0), Vector(0, 0, 1), 1.5),
    Part.Circle(Vector(185, 140, 0), Vector(0, 0, 1), 1.5),
], False)
sketch38.addConstraint([
    Sketcher.Constraint("Equal", 0, 1),
    Sketcher.Constraint("Symmetric", 0, 3, 1, 3, -2),
    Sketcher.Constraint("Diameter", 0, Q("3 mm")),
    Sketcher.Constraint("DistanceX", 0, 3, -1, 1, Q("185 mm")),
    Sketcher.Constraint("DistanceY", -1, 1, 0, 3, Q("140 mm")),
])
pocket23 = body.newObject("PartDesign::Pocket", "Pocket022")
pocket23.Profile = sketch38
pocket23.Length = 50
pocket23.Reversed = True

# Sketch on XZ plane
sketch39 = body.newObject("Sketcher::SketchObject", "Sketch038")
sketch39.AttachmentSupport = (doc.getObject("XZ_Plane"), [""])
sketch39.MapMode = "FlatFace"
sketch39.AttachmentOffset = App.Placement(Vector(0, 0, -5.5), App.Rotation())
sketch39.addGeometry([
    Part.LineSegment(Vector(-195, -145, 0), Vector(-195, 145, 0)),
    Part.LineSegment(Vector(-195, 145, 0), Vector(195, 145, 0)),
    Part.LineSegment(Vector(195, 145, 0), Vector(195, -145, 0)),
    Part.LineSegment(Vector(195, -145, 0), Vector(-195, -145, 0)),
], False)
sketch39.addConstraint([
    Sketcher.Constraint("Coincident", 0, 2, 1, 1),
    Sketcher.Constraint("Coincident", 1, 2, 2, 1),
    Sketcher.Constraint("Coincident", 2, 2, 3, 1),
    Sketcher.Constraint("Coincident", 3, 2, 0, 1),
    Sketcher.Constraint("Vertical", 0),
    Sketcher.Constraint("Horizontal", 1),
    Sketcher.Constraint("Vertical", 2),
    Sketcher.Constraint("Horizontal", 3),
    Sketcher.Constraint("Symmetric", 0, 2, 2, 2, -1, 1),
    Sketcher.Constraint("DistanceX", 1, 1, 1, 2, Q("390 mm")),
    Sketcher.Constraint("DistanceY", 0, 1, 0, 2, Q("290 mm")),
])
pocket24 = body.newObject("PartDesign::Pocket", "Pocket023")
pocket24.Profile = sketch39
pocket24.Length = 50

# Sketch on XZ plane
sketch40 = body.newObject("Sketcher::SketchObject", "Sketch039")
sketch40.AttachmentSupport = (doc.getObject("XZ_Plane"), [""])
sketch40.MapMode = "FlatFace"
sketch40.AttachmentOffset = App.Placement(Vector(0, 0, -22), App.Rotation())
sketch40.addGeometry([
    Part.LineSegment(Vector(-195, 135, 0), Vector(-195, 145, 0)),  # 0
    Part.LineSegment(Vector(-195, 145, 0), Vector(195, 145, 0)),  # 1
    Part.LineSegment(Vector(195, 145, 0), Vector(195, 135, 0)),  # 2
    Part.LineSegment(Vector(195, 135, 0), Vector(-195, 135, 0)),  # 3
    Part.Circle(Vector(-185, 140, 0), Vector(0, 0, 1), 1.5),  # 4
    Part.Circle(Vector(185, 140, 0), Vector(0, 0, 1), 1.5),  # 5
], False)
sketch40.addConstraint([
    Sketcher.Constraint("Coincident", 0, 2, 1, 1),
    Sketcher.Constraint("Coincident", 1, 2, 2, 1),
    Sketcher.Constraint("Coincident", 2, 2, 3, 1),
    Sketcher.Constraint("Coincident", 3, 2, 0, 1),
    Sketcher.Constraint("Vertical", 0),
    Sketcher.Constraint("Horizontal", 1),
    Sketcher.Constraint("Vertical", 2),
    Sketcher.Constraint("Horizontal", 3),
    Sketcher.Constraint("Equal", 4, 5),
    Sketcher.Constraint("Symmetric", 4, 3, 5, 3, -2),
    Sketcher.Constraint("Diameter", 4, Q("3 mm")),
    Sketcher.Constraint("DistanceX", 1, 1, 1, 2, Q("390 mm")),
    Sketcher.Constraint("DistanceY", 0, 1, 0, 2, Q("10 mm")),
    Sketcher.Constraint("DistanceX", 4, 3, -1, 1, Q("185 mm")),
    Sketcher.Constraint("DistanceY", -1, 1, 4, 3, Q("140 mm")),
    Sketcher.Constraint("DistanceX", 0, 2, -1, 1, Q("195 mm")),
    Sketcher.Constraint("DistanceY", -1, 1, 0, 2, Q("145 mm")),
])
pad16 = body.newObject("PartDesign::Pad", "Pad015")
pad16.Profile = sketch40
pad16.Length = 16.5

# Sketch on XZ plane
sketch41 = body.newObject("Sketcher::SketchObject", "Sketch040")
sketch41.AttachmentSupport = (doc.getObject("XZ_Plane"), [""])
sketch41.MapMode = "FlatFace"
sketch41.AttachmentOffset = App.Placement(Vector(0, 0, -5.5), App.Rotation())
sketch41.addGeometry([
    Part.LineSegment(Vector(-195, -145, 0), Vector(-195, 135, 0)),
    Part.LineSegment(Vector(-195, 135, 0), Vector(195, 135, 0)),
    Part.LineSegment(Vector(195, 135, 0), Vector(195, -145, 0)),
    Part.LineSegment(Vector(195, -145, 0), Vector(-195, -145, 0)),
], False)
sketch41.addConstraint([
    Sketcher.Constraint("Coincident", 0, 2, 1, 1),
    Sketcher.Constraint("Coincident", 1, 2, 2, 1),
    Sketcher.Constraint("Coincident", 2, 2, 3, 1),
    Sketcher.Constraint("Coincident", 3, 2, 0, 1),
    Sketcher.Constraint("Vertical", 0),
    Sketcher.Constraint("Horizontal", 1),
    Sketcher.Constraint("Vertical", 2),
    Sketcher.Constraint("Horizontal", 3),
    Sketcher.Constraint("DistanceX", 1, 1, 1, 2, Q("390 mm")),
    Sketcher.Constraint("DistanceY", 0, 1, 0, 2, Q("280 mm")),
    Sketcher.Constraint("DistanceX", 0, 2, -1, 1, Q("195 mm")),
    Sketcher.Constraint("DistanceY", -1, 1, 0, 2, Q("135 mm")),
])
pocket25 = body.newObject("PartDesign::Pocket", "Pocket024")
pocket25.Profile = sketch41
pocket25.Length = 16.5
pocket25.Reversed = True

# Sketch on XZ plane
sketch42 = body.newObject("Sketcher::SketchObject", "Sketch041")
sketch42.AttachmentSupport = (doc.getObject("XZ_Plane"), [""])
sketch42.MapMode = "FlatFace"
sketch42.addGeometry([
    Part.LineSegment(Vector(195, 145, 0), Vector(195, 425, 0)),
    Part.LineSegment(Vector(195, 425, 0), Vector(-195, 425, 0)),
    Part.LineSegment(Vector(-195, 425, 0), Vector(-195, 145, 0)),
    Part.LineSegment(Vector(-195, 145, 0), Vector(195, 145, 0)),
], False)
sketch42.addConstraint([
    Sketcher.Constraint("Coincident", 0, 2, 1, 1),
    Sketcher.Constraint("Coincident", 1, 2, 2, 1),
    Sketcher.Constraint("Coincident", 2, 2, 3, 1),
    Sketcher.Constraint("Coincident", 3, 2, 0, 1),
    Sketcher.Constraint("Vertical", 0),
    Sketcher.Constraint("Horizontal", 1),
    Sketcher.Constraint("Vertical", 2),
    Sketcher.Constraint("Horizontal", 3),
    Sketcher.Constraint("DistanceX", 1, 2, 1, 1, Q("390 mm")),
    Sketcher.Constraint("DistanceY", 0, 1, 0, 2, Q("280 mm")),
    Sketcher.Constraint("DistanceX", -1, 1, 0, 2, Q("195 mm")),
    Sketcher.Constraint("DistanceY", -1, 1, 0, 2, Q("425 mm")),
])
pad17 = body.newObject("PartDesign::Pad", "Pad016")
pad17.Profile = sketch42
pad17.Length = 5.5
pad17.Reversed = True

doc.recompute()
